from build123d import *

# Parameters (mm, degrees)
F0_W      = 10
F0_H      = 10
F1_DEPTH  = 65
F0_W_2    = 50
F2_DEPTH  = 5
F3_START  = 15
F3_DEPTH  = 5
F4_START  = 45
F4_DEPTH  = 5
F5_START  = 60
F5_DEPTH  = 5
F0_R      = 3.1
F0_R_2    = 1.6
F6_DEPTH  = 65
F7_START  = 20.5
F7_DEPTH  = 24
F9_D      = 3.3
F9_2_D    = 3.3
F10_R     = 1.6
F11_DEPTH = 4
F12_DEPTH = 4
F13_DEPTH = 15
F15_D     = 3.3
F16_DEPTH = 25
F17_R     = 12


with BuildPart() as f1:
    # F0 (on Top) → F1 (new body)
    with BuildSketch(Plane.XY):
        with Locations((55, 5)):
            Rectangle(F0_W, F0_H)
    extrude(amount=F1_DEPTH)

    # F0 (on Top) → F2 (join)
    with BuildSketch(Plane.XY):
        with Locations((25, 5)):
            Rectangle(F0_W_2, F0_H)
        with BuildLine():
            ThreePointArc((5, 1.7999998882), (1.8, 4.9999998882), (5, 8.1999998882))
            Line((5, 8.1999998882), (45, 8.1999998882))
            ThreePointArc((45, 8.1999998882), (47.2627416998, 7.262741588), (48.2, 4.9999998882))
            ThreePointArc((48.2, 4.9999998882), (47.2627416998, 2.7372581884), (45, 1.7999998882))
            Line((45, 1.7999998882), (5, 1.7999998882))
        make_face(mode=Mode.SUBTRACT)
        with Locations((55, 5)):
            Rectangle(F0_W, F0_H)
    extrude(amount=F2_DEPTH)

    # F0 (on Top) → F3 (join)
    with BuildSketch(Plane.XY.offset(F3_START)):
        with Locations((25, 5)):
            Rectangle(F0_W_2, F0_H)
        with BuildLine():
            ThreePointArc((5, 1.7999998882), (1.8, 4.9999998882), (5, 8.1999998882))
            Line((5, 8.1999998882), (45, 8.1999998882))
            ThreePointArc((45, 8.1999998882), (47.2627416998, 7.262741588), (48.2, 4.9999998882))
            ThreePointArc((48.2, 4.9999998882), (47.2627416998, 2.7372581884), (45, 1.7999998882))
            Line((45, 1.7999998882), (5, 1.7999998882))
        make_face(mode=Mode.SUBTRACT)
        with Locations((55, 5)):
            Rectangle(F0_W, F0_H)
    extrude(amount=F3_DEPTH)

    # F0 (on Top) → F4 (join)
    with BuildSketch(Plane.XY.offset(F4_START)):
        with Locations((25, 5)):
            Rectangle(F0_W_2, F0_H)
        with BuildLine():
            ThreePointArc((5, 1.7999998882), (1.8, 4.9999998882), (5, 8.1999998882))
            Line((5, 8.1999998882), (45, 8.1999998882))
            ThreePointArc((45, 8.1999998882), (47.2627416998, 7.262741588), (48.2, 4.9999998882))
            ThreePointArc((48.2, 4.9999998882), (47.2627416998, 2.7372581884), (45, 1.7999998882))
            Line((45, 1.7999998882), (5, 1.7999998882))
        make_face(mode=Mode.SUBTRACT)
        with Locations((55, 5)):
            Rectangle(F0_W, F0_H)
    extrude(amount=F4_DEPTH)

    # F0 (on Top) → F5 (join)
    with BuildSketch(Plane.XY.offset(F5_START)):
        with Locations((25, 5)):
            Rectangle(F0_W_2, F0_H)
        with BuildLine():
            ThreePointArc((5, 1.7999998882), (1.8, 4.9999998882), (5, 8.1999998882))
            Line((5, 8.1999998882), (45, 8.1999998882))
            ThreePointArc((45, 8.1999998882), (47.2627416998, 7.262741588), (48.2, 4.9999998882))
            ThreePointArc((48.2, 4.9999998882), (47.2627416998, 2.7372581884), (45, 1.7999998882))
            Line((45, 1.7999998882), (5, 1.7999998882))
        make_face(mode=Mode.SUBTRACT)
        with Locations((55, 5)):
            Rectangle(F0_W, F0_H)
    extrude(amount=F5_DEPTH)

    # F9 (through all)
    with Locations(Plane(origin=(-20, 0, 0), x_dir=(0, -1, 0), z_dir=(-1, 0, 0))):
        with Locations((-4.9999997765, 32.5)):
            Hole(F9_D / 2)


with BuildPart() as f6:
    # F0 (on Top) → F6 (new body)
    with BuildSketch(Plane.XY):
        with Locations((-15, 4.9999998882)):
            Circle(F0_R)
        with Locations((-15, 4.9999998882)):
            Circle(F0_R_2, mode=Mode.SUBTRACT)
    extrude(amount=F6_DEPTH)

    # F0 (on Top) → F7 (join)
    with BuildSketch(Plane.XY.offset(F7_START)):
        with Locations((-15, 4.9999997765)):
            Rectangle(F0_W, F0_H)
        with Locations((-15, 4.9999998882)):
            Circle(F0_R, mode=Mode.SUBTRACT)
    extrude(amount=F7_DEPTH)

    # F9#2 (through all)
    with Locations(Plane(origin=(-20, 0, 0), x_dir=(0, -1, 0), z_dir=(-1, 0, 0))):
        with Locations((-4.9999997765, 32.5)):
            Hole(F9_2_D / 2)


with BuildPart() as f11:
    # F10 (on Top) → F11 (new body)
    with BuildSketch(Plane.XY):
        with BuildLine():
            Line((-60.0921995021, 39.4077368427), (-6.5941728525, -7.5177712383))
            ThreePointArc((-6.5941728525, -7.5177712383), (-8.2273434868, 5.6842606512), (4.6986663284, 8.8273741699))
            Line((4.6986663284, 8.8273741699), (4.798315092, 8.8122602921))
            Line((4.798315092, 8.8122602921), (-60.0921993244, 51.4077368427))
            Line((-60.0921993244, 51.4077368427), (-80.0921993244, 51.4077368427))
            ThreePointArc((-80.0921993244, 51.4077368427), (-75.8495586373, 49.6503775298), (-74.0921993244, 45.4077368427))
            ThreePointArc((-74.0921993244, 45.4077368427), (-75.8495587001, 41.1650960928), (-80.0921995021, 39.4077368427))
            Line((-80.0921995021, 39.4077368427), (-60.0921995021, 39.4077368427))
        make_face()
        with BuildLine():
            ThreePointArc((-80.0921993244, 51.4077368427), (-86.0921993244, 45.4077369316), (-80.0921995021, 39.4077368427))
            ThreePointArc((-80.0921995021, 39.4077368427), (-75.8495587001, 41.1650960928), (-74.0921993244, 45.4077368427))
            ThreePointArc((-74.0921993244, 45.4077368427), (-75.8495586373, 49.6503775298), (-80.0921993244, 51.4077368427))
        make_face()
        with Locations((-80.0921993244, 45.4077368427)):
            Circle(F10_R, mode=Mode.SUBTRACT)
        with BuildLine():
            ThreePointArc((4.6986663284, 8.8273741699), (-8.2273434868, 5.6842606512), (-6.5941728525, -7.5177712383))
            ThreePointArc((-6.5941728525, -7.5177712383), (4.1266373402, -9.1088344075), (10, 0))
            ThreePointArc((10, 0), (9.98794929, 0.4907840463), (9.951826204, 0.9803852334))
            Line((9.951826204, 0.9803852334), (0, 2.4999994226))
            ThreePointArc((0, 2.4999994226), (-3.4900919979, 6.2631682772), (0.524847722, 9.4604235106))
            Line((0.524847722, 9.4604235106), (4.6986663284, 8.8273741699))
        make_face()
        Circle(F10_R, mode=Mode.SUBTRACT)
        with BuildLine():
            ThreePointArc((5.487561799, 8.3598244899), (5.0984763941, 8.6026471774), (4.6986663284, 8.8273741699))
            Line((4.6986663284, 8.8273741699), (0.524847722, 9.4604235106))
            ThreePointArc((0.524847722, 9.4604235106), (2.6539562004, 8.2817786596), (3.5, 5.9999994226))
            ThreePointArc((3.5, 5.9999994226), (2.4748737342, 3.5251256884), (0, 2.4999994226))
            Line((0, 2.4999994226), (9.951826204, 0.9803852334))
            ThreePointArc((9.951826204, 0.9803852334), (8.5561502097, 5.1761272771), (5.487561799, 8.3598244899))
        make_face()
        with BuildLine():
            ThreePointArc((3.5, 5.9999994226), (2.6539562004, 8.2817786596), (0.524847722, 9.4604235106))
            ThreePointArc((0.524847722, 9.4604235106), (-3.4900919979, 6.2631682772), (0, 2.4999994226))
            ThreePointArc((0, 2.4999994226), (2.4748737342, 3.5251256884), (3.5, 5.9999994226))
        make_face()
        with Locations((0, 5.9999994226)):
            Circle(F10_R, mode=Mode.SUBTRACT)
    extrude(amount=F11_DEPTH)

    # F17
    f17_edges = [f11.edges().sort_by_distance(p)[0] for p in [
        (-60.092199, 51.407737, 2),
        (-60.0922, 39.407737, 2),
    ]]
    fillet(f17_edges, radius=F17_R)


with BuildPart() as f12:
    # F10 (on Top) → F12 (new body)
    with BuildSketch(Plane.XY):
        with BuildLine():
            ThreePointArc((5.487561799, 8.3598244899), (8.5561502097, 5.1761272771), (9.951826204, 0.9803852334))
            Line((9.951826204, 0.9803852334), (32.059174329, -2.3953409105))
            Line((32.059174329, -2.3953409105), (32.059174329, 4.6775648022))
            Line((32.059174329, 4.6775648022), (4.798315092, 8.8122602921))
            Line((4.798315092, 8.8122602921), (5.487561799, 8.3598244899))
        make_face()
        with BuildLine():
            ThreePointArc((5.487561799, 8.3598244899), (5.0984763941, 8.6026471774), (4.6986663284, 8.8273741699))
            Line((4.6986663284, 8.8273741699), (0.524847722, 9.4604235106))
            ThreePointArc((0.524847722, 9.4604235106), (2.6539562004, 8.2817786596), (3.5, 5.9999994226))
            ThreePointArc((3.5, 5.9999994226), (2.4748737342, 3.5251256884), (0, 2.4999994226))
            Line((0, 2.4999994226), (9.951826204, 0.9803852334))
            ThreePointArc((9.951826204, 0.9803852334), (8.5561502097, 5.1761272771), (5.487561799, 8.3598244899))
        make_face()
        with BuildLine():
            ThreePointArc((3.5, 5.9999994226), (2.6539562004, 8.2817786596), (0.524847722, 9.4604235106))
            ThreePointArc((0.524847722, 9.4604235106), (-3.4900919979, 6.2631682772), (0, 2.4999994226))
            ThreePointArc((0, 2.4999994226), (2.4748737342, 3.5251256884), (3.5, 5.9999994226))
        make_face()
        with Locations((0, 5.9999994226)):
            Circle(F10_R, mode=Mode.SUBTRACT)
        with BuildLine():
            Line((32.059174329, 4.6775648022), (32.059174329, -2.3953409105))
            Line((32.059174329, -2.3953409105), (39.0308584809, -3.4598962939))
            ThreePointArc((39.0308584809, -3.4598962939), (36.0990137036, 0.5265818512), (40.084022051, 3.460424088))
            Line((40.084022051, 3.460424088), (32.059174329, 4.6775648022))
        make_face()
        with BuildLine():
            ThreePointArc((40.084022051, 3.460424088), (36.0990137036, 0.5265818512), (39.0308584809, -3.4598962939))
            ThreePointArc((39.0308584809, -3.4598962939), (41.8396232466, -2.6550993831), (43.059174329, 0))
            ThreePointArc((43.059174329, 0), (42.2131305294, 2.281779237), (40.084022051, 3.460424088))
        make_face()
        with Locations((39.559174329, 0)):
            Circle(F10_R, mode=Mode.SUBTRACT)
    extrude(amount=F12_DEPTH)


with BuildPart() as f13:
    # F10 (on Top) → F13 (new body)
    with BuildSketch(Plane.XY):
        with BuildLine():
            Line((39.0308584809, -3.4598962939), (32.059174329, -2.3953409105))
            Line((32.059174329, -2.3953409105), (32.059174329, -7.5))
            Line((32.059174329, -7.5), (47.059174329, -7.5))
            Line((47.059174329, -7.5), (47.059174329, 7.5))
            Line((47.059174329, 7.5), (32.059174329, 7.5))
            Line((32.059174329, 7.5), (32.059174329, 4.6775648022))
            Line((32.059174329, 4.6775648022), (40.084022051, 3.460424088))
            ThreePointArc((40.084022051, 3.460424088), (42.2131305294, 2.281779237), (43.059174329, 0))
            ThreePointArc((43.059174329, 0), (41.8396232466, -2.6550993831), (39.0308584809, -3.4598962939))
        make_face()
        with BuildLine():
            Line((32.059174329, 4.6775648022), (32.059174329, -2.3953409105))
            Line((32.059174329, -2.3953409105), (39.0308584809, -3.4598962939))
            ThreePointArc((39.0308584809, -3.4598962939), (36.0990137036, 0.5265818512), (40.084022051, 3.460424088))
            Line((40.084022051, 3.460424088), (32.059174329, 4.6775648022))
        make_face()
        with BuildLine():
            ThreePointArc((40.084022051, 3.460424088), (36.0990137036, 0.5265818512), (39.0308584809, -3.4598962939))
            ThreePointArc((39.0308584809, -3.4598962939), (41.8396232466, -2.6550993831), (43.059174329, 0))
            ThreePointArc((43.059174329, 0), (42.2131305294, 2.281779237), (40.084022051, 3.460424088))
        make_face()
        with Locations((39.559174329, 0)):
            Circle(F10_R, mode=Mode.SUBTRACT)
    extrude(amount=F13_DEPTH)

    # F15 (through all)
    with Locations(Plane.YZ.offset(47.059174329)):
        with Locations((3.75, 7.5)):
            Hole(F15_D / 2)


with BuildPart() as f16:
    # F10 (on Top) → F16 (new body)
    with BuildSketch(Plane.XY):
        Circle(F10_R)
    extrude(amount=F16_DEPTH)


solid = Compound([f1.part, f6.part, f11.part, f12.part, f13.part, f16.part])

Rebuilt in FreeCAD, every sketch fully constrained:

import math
import FreeCAD as App
import Part
import Sketcher

V = App.Vector


def edges_at(feature, points):
    """Names of the edges that pass closest to the given points."""
    edges = feature.Shape.Edges
    near = lambda p: min(range(len(edges)), key=lambda i: edges[i].distToShape(Part.Vertex(*p))[0])
    return sorted({f"Edge{near(p) + 1}" for p in points})


def add_polygon(sketch, points):
    """Adds a closed chain of lines whose ends are joined by coincident constraints."""
    first, n = sketch.GeometryCount, len(points)
    for a, b in zip(points, points[1:] + points[:1]):
        sketch.addGeometry(Part.LineSegment(App.Vector(*a, 0), App.Vector(*b, 0)), False)
    for i in range(n):
        sketch.addConstraint(Sketcher.Constraint("Coincident", first + i, 2, first + (i + 1) % n, 1))

doc = App.newDocument("Part")
body = doc.addObject("PartDesign::Body", "Body")

sketch1 = body.newObject("Sketcher::SketchObject", "Sketch")
sketch1.AttachmentSupport = (doc.getObject("XY_Plane"), [""])
sketch1.MapMode = "FlatFace"
add_polygon(sketch1, [(50, 10), (50, 0), (60, 0), (60, 10)])
sketch1.addConstraint([
    Sketcher.Constraint("Vertical", 0),
    Sketcher.Constraint("Horizontal", 1),
    Sketcher.Constraint("Vertical", 2),
    Sketcher.Constraint("Horizontal", 3),
    Sketcher.Constraint("PointOnObject", 0, 2, -1),
    Sketcher.Constraint("Equal", 3, 0),
    Sketcher.Constraint("DistanceX", 1, 1, 1, 2, 10.0),
    Sketcher.Constraint("DistanceX", -1, 1, 0, 2, 50.0),
])
pad1 = body.newObject("PartDesign::Pad", "Pad")
pad1.Profile = sketch1
pad1.Length = 65

sketch2 = body.newObject("Sketcher::SketchObject", "Sketch001")
sketch2.AttachmentSupport = (doc.getObject("XY_Plane"), [""])
sketch2.MapMode = "FlatFace"
add_polygon(sketch2, [(0, 10), (0, 0), (60, 0), (60, 10)])
sketch2.addGeometry(Part.LineSegment(V(45, 1.8, 0), V(5, 1.8, 0)), False)
sketch2.addGeometry(Part.ArcOfCircle(Part.Circle(V(5, 5, 0), V(0, 0, 1), 3.2), math.radians(90), math.radians(270)), False)
sketch2.addGeometry(Part.LineSegment(V(5, 8.2, 0), V(45, 8.2, 0)), False)
sketch2.addGeometry(Part.ArcOfCircle(Part.Circle(V(45, 5, 0), V(0, 0, 1), 3.2), math.radians(0), math.radians(90)), False)
sketch2.addGeometry(Part.ArcOfCircle(Part.Circle(V(45, 5, 0), V(0, 0, 1), 3.2), math.radians(-90), math.radians(0)), False)
sketch2.addConstraint([
    Sketcher.Constraint("Tangent", 4, 2, 5, 2),
    Sketcher.Constraint("Tangent", 5, 1, 6, 1),
    Sketcher.Constraint("Tangent", 6, 2, 7, 2),
    Sketcher.Constraint("Tangent", 7, 1, 8, 2),
    Sketcher.Constraint("Tangent", 8, 1, 4, 1),
    Sketcher.Constraint("Vertical", 0),
    Sketcher.Constraint("Horizontal", 1),
    Sketcher.Constraint("Vertical", 2),
    Sketcher.Constraint("Horizontal", 3),
    Sketcher.Constraint("Horizontal", 4),
    Sketcher.Constraint("Horizontal", 6),
    Sketcher.Constraint("Coincident", 0, 2, -1, 1),
    Sketcher.Constraint("Equal", 5, 7),
    Sketcher.Constraint("Horizontal", 8, 3, 7, 1),
    Sketcher.Constraint("Radius", 5, 3.2),
    Sketcher.Constraint("DistanceX", 1, 1, 1, 2, 60.0),
    Sketcher.Constraint("DistanceX", 4, 2, 4, 1, 40.0),
    Sketcher.Constraint("DistanceY", 0, 2, 0, 1, 10.0),
    Sketcher.Constraint("DistanceX", -1, 1, 5, 3, 5.0),
    Sketcher.Constraint("DistanceY", -1, 1, 5, 3, 5.0),
])
pad2 = body.newObject("PartDesign::Pad", "Pad001")
pad2.Profile = sketch2
pad2.Length = 5

sketch3 = body.newObject("Sketcher::SketchObject", "Sketch002")
sketch3.AttachmentSupport = (doc.getObject("XY_Plane"), [""])
sketch3.MapMode = "FlatFace"
sketch3.AttachmentOffset = App.Placement(V(0, 0, 15), App.Rotation())
add_polygon(sketch3, [(0, 10), (0, 0), (60, 0), (60, 10)])
sketch3.addGeometry(Part.LineSegment(V(45, 1.8, 0), V(5, 1.8, 0)), False)
sketch3.addGeometry(Part.ArcOfCircle(Part.Circle(V(5, 5, 0), V(0, 0, 1), 3.2), math.radians(90), math.radians(270)), False)
sketch3.addGeometry(Part.LineSegment(V(5, 8.2, 0), V(45, 8.2, 0)), False)
sketch3.addGeometry(Part.ArcOfCircle(Part.Circle(V(45, 5, 0), V(0, 0, 1), 3.2), math.radians(0), math.radians(90)), False)
sketch3.addGeometry(Part.ArcOfCircle(Part.Circle(V(45, 5, 0), V(0, 0, 1), 3.2), math.radians(-90), math.radians(0)), False)
sketch3.addConstraint([
    Sketcher.Constraint("Tangent", 4, 2, 5, 2),
    Sketcher.Constraint("Tangent", 5, 1, 6, 1),
    Sketcher.Constraint("Tangent", 6, 2, 7, 2),
    Sketcher.Constraint("Tangent", 7, 1, 8, 2),
    Sketcher.Constraint("Tangent", 8, 1, 4, 1),
    Sketcher.Constraint("Vertical", 0),
    Sketcher.Constraint("Horizontal", 1),
    Sketcher.Constraint("Vertical", 2),
    Sketcher.Constraint("Horizontal", 3),
    Sketcher.Constraint("Horizontal", 4),
    Sketcher.Constraint("Horizontal", 6),
    Sketcher.Constraint("Coincident", 0, 2, -1, 1),
    Sketcher.Constraint("Equal", 5, 7),
    Sketcher.Constraint("Horizontal", 8, 3, 7, 1),
    Sketcher.Constraint("Radius", 5, 3.2),
    Sketcher.Constraint("DistanceX", 1, 1, 1, 2, 60.0),
    Sketcher.Constraint("DistanceX", 4, 2, 4, 1, 40.0),
    Sketcher.Constraint("DistanceY", 0, 2, 0, 1, 10.0),
    Sketcher.Constraint("DistanceX", -1, 1, 5, 3, 5.0),
    Sketcher.Constraint("DistanceY", -1, 1, 5, 3, 5.0),
])
pad3 = body.newObject("PartDesign::Pad", "Pad002")
pad3.Profile = sketch3
pad3.Length = 5

sketch4 = body.newObject("Sketcher::SketchObject", "Sketch003")
sketch4.AttachmentSupport = (doc.getObject("XY_Plane"), [""])
sketch4.MapMode = "FlatFace"
sketch4.AttachmentOffset = App.Placement(V(0, 0, 45), App.Rotation())
add_polygon(sketch4, [(0, 10), (0, 0), (60, 0), (60, 10)])
sketch4.addGeometry(Part.LineSegment(V(45, 1.8, 0), V(5, 1.8, 0)), False)
sketch4.addGeometry(Part.ArcOfCircle(Part.Circle(V(5, 5, 0), V(0, 0, 1), 3.2), math.radians(90), math.radians(270)), False)
sketch4.addGeometry(Part.LineSegment(V(5, 8.2, 0), V(45, 8.2, 0)), False)
sketch4.addGeometry(Part.ArcOfCircle(Part.Circle(V(45, 5, 0), V(0, 0, 1), 3.2), math.radians(0), math.radians(90)), False)
sketch4.addGeometry(Part.ArcOfCircle(Part.Circle(V(45, 5, 0), V(0, 0, 1), 3.2), math.radians(-90), math.radians(0)), False)
sketch4.addConstraint([
    Sketcher.Constraint("Tangent", 4, 2, 5, 2),
    Sketcher.Constraint("Tangent", 5, 1, 6, 1),
    Sketcher.Constraint("Tangent", 6, 2, 7, 2),
    Sketcher.Constraint("Tangent", 7, 1, 8, 2),
    Sketcher.Constraint("Tangent", 8, 1, 4, 1),
    Sketcher.Constraint("Vertical", 0),
    Sketcher.Constraint("Horizontal", 1),
    Sketcher.Constraint("Vertical", 2),
    Sketcher.Constraint("Horizontal", 3),
    Sketcher.Constraint("Horizontal", 4),
    Sketcher.Constraint("Horizontal", 6),
    Sketcher.Constraint("Coincident", 0, 2, -1, 1),
    Sketcher.Constraint("Equal", 5, 7),
    Sketcher.Constraint("Horizontal", 8, 3, 7, 1),
    Sketcher.Constraint("Radius", 5, 3.2),
    Sketcher.Constraint("DistanceX", 1, 1, 1, 2, 60.0),
    Sketcher.Constraint("DistanceX", 4, 2, 4, 1, 40.0),
    Sketcher.Constraint("DistanceY", 0, 2, 0, 1, 10.0),
    Sketcher.Constraint("DistanceX", -1, 1, 5, 3, 5.0),
    Sketcher.Constraint("DistanceY", -1, 1, 5, 3, 5.0),
])
pad4 = body.newObject("PartDesign::Pad", "Pad003")
pad4.Profile = sketch4
pad4.Length = 5

sketch5 = body.newObject("Sketcher::SketchObject", "Sketch004")
sketch5.AttachmentSupport = (doc.getObject("XY_Plane"), [""])
sketch5.MapMode = "FlatFace"
sketch5.AttachmentOffset = App.Placement(V(0, 0, 60), App.Rotation())
add_polygon(sketch5, [(0, 10), (0, 0), (60, 0), (60, 10)])
sketch5.addGeometry(Part.LineSegment(V(45, 1.8, 0), V(5, 1.8, 0)), False)
sketch5.addGeometry(Part.ArcOfCircle(Part.Circle(V(5, 5, 0), V(0, 0, 1), 3.2), math.radians(90), math.radians(270)), False)
sketch5.addGeometry(Part.LineSegment(V(5, 8.2, 0), V(45, 8.2, 0)), False)
sketch5.addGeometry(Part.ArcOfCircle(Part.Circle(V(45, 5, 0), V(0, 0, 1), 3.2), math.radians(0), math.radians(90)), False)
sketch5.addGeometry(Part.ArcOfCircle(Part.Circle(V(45, 5, 0), V(0, 0, 1), 3.2), math.radians(-90), math.radians(0)), False)
sketch5.addConstraint([
    Sketcher.Constraint("Tangent", 4, 2, 5, 2),
    Sketcher.Constraint("Tangent", 5, 1, 6, 1),
    Sketcher.Constraint("Tangent", 6, 2, 7, 2),
    Sketcher.Constraint("Tangent", 7, 1, 8, 2),
    Sketcher.Constraint("Tangent", 8, 1, 4, 1),
    Sketcher.Constraint("Vertical", 0),
    Sketcher.Constraint("Horizontal", 1),
    Sketcher.Constraint("Vertical", 2),
    Sketcher.Constraint("Horizontal", 3),
    Sketcher.Constraint("Horizontal", 4),
    Sketcher.Constraint("Horizontal", 6),
    Sketcher.Constraint("Coincident", 0, 2, -1, 1),
    Sketcher.Constraint("Equal", 5, 7),
    Sketcher.Constraint("Horizontal", 8, 3, 7, 1),
    Sketcher.Constraint("Radius", 5, 3.2),
    Sketcher.Constraint("DistanceX", 1, 1, 1, 2, 60.0),
    Sketcher.Constraint("DistanceX", 4, 2, 4, 1, 40.0),
    Sketcher.Constraint("DistanceY", 0, 2, 0, 1, 10.0),
    Sketcher.Constraint("DistanceX", -1, 1, 5, 3, 5.0),
    Sketcher.Constraint("DistanceY", -1, 1, 5, 3, 5.0),
])
pad5 = body.newObject("PartDesign::Pad", "Pad004")
pad5.Profile = sketch5
pad5.Length = 5

sketch6 = body.newObject("Sketcher::SketchObject", "Sketch005")
sketch6.AttachmentSupport = (doc.getObject("YZ_Plane"), [""])
sketch6.MapMode = "FlatFace"
sketch6.AttachmentOffset = App.Placement(V(0, 0, -20), App.Rotation())
sketch6.addGeometry(Part.Circle(V(5, 32.5, 0), V(0, 0, 1), 1.6), False)
sketch6.addConstraint([
    Sketcher.Constraint("Diameter", 0, 3.3),
    Sketcher.Constraint("DistanceX", -1, 1, 0, 3, 5.0),
    Sketcher.Constraint("DistanceY", -1, 1, 0, 3, 32.5),
])
doc.recompute()
hole = body.newObject("PartDesign::Hole", "Hole")
hole.Profile = sketch6
hole.ThreadType = "None"
hole.Diameter = 3.3
hole.DepthType = "ThroughAll"
hole.Reversed = True
body2 = doc.addObject("PartDesign::Body", "Body001")

sketch7 = body2.newObject("Sketcher::SketchObject", "Sketch006")
sketch7.AttachmentSupport = (doc.getObject("XY_Plane001"), [""])
sketch7.MapMode = "FlatFace"
sketch7.addGeometry([
    Part.Circle(V(-15, 5, 0), V(0, 0, 1), 3.1),
    Part.Circle(V(-15, 5, 0), V(0, 0, 1), 1.6),
], False)
sketch7.addConstraint([
    Sketcher.Constraint("Coincident", 1, 3, 0, 3),
    Sketcher.Constraint("Diameter", 0, 6.2),
    Sketcher.Constraint("Diameter", 1, 3.2),
    Sketcher.Constraint("DistanceX", 0, 3, -1, 1, 15.0),
    Sketcher.Constraint("DistanceY", -1, 1, 0, 3, 5.0),
])
pad6 = body2.newObject("PartDesign::Pad", "Pad005")
pad6.Profile = sketch7
pad6.Length = 65

sketch8 = body2.newObject("Sketcher::SketchObject", "Sketch007")
sketch8.AttachmentSupport = (doc.getObject("XY_Plane001"), [""])
sketch8.MapMode = "FlatFace"
sketch8.AttachmentOffset = App.Placement(V(0, 0, 20.5), App.Rotation())
add_polygon(sketch8, [(-20, 10), (-20, 0), (-10, 0), (-10, 10)])
sketch8.addGeometry(Part.Circle(V(-15, 5, 0), V(0, 0, 1), 3.1), False)
sketch8.addConstraint([
    Sketcher.Constraint("Vertical", 0),
    Sketcher.Constraint("Horizontal", 1),
    Sketcher.Constraint("Vertical", 2),
    Sketcher.Constraint("Horizontal", 3),
    Sketcher.Constraint("PointOnObject", 0, 2, -1),
    Sketcher.Constraint("Equal", 3, 0),
    Sketcher.Constraint("Diameter", 4, 6.2),
    Sketcher.Constraint("DistanceX", 1, 1, 1, 2, 10.0),
    Sketcher.Constraint("DistanceX", 4, 3, -1, 1, 15.0),
    Sketcher.Constraint("DistanceY", -1, 1, 4, 3, 5.0),
    Sketcher.Constraint("DistanceX", 0, 2, -1, 1, 20.0),
])
pad7 = body2.newObject("PartDesign::Pad", "Pad006")
pad7.Profile = sketch8
pad7.Length = 24

sketch9 = body2.newObject("Sketcher::SketchObject", "Sketch008")
sketch9.AttachmentSupport = (doc.getObject("YZ_Plane001"), [""])
sketch9.MapMode = "FlatFace"
sketch9.AttachmentOffset = App.Placement(V(0, 0, -20), App.Rotation())
sketch9.addGeometry(Part.Circle(V(5, 32.5, 0), V(0, 0, 1), 1.6), False)
sketch9.addConstraint([
    Sketcher.Constraint("Diameter", 0, 3.3),
    Sketcher.Constraint("DistanceX", -1, 1, 0, 3, 5.0),
    Sketcher.Constraint("DistanceY", -1, 1, 0, 3, 32.5),
])
doc.recompute()
hole2 = body2.newObject("PartDesign::Hole", "Hole001")
hole2.Profile = sketch9
hole2.ThreadType = "None"
hole2.Diameter = 3.3
hole2.DepthType = "ThroughAll"
hole2.Reversed = True
body3 = doc.addObject("PartDesign::Body", "Body002")

sketch10 = body3.newObject("Sketcher::SketchObject", "Sketch009")
sketch10.AttachmentSupport = (doc.getObject("XY_Plane002"), [""])
sketch10.MapMode = "FlatFace"
sketch10.addGeometry([
    Part.LineSegment(V(-60.09, 39.41, 0), V(-6.59, -7.52, 0)),
    Part.ArcOfCircle(Part.Circle(V(0, 0, 0), V(0, 0, 1), 10), math.radians(-131), math.radians(0)),
    Part.ArcOfCircle(Part.Circle(V(0, 0, 0), V(0, 0, 1), 10), math.radians(0), math.radians(5.63)),
    Part.ArcOfCircle(Part.Circle(V(0, 0, 0), V(0, 0, 1), 10), math.radians(6), math.radians(57)),
    Part.ArcOfCircle(Part.Circle(V(0, 0, 0), V(0, 0, 1), 10), math.radians(56.72), math.radians(61.97)),
    Part.LineSegment(V(4.7, 8.83, 0), V(4.8, 8.81, 0)),
    Part.LineSegment(V(4.8, 8.81, 0), V(-60.09, 51.41, 0)),
    Part.LineSegment(V(-60.09, 51.41, 0), V(-80.09, 51.41, 0)),
    Part.ArcOfCircle(Part.Circle(V(-80.09, 45.41, 0), V(0, 0, 1), 6), math.radians(90), math.radians(270)),
    Part.LineSegment(V(-80.09, 39.41, 0), V(-60.09, 39.41, 0)),
    Part.Circle(V(0, 0, 0), V(0, 0, 1), 1.6),
    Part.Circle(V(0, 6, 0), V(0, 0, 1), 1.6),
    Part.Circle(V(-80.09, 45.41, 0), V(0, 0, 1), 1.6),
], False)
sketch10.addConstraint([
    Sketcher.Constraint("Tangent", 0, 2, 1, 1),
    Sketcher.Constraint("Tangent", 1, 2, 2, 1),
    Sketcher.Constraint("Tangent", 2, 2, 3, 1),
    Sketcher.Constraint("Tangent", 3, 2, 4, 1),
    Sketcher.Constraint("Coincident", 4, 2, 5, 1),
    Sketcher.Constraint("Coincident", 5, 2, 6, 1),
    Sketcher.Constraint("Coincident", 6, 2, 7, 1),
    Sketcher.Constraint("Tangent", 7, 2, 8, 1),
    Sketcher.Constraint("Tangent", 8, 2, 9, 1),
    Sketcher.Constraint("Coincident", 9, 2, 0, 1),
    Sketcher.Constraint("Horizontal", 7),
    Sketcher.Constraint("Horizontal", 9),
    Sketcher.Constraint("Coincident", 1, 3, -1, 1),
    Sketcher.Constraint("Coincident", 3, 3, -1, 1),
    Sketcher.Constraint("Coincident", 10, 3, -1, 1),
    Sketcher.Constraint("Coincident", 12, 3, 8, 3),
    Sketcher.Constraint("Equal", 3, 4),
    Sketcher.Constraint("Equal", 10, 11),
    Sketcher.Constraint("Equal", 11, 12),
    Sketcher.Constraint("PointOnObject", 11, 3, -2),
    Sketcher.Constraint("PointOnObject", 1, 2, -1),
    Sketcher.Constraint("Vertical", 6, 2, 9, 2),
    Sketcher.Constraint("Radius", 1, 10.0),
    Sketcher.Constraint("Radius", 8, 6.0),
    Sketcher.Constraint("Diameter", 10, 3.2),
    Sketcher.Constraint("DistanceX", 7, 2, 7, 1, 20.0),
    Sketcher.Constraint("DistanceY", -1, 1, 11, 3, 5.999999),
    Sketcher.Constraint("DistanceX", 8, 3, -1, 1, 80.092199),
    Sketcher.Constraint("Distance", 5, 0.100788),
    Sketcher.Constraint("DistanceY", 0, 2, -1, 1, 7.517771),
    Sketcher.Constraint("DistanceX", -1, 1, 3, 2, 5.487562),
    Sketcher.Constraint("DistanceY", -1, 1, 5, 2, 8.81226),
    Sketcher.Constraint("DistanceY", 2, 2, 3, 2, 7.379439),
    Sketcher.Constraint("DistanceY", 3, 2, 4, 2, 0.46755),
])
pad8 = body3.newObject("PartDesign::Pad", "Pad007")
pad8.Profile = sketch10
pad8.Length = 4
doc.recompute()

fillet = body3.newObject("PartDesign::Fillet", "Fillet")
fillet.Base = (pad8, edges_at(pad8, [(-60.092, 51.408, 2), (-60.092, 39.408, 2)]))
fillet.Radius = 12
body4 = doc.addObject("PartDesign::Body", "Body003")

sketch11 = body4.newObject("Sketcher::SketchObject", "Sketch010")
sketch11.AttachmentSupport = (doc.getObject("XY_Plane003"), [""])
sketch11.MapMode = "FlatFace"
sketch11.addGeometry([
    Part.LineSegment(V(0, 2.5, 0), V(32.1, -2.4, 0)),
    Part.LineSegment(V(32.1, -2.4, 0), V(39, -3.5, 0)),
    Part.ArcOfCircle(Part.Circle(V(39.6, 0, 0), V(0, 0, 1), 3.5), math.radians(-99), math.radians(0)),
    Part.ArcOfCircle(Part.Circle(V(39.6, 0, 0), V(0, 0, 1), 3.5), math.radians(0), math.radians(81)),
    Part.LineSegment(V(40.1, 3.5, 0), V(32.1, 4.7, 0)),
    Part.LineSegment(V(32.1, 4.7, 0), V(4.8, 8.8, 0)),
    Part.LineSegment(V(4.8, 8.8, 0), V(5.5, 8.4, 0)),
    Part.ArcOfCircle(Part.Circle(V(0, 0, 0), V(0, 0, 1), 10), math.radians(56.72), math.radians(61.97)),
    Part.LineSegment(V(4.7, 8.8, 0), V(0.5, 9.5, 0)),
    Part.ArcOfCircle(Part.Circle(V(0, 6, 0), V(0, 0, 1), 3.5), math.radians(81), math.radians(270)),
    Part.Circle(V(39.6, 0, 0), V(0, 0, 1), 1.6),
    Part.Circle(V(0, 6, 0), V(0, 0, 1), 1.6),
], False)
sketch11.addConstraint([
    Sketcher.Constraint("Coincident", 0, 2, 1, 1),
    Sketcher.Constraint("Tangent", 1, 2, 2, 1),
    Sketcher.Constraint("Tangent", 2, 2, 3, 1),
    Sketcher.Constraint("Tangent", 3, 2, 4, 1),
    Sketcher.Constraint("Coincident", 4, 2, 5, 1),
    Sketcher.Constraint("Coincident", 5, 2, 6, 1),
    Sketcher.Constraint("Tangent", 6, 2, 7, 1),
    Sketcher.Constraint("Coincident", 7, 2, 8, 1),
    Sketcher.Constraint("Tangent", 8, 2, 9, 1),
    Sketcher.Constraint("Coincident", 9, 2, 0, 1),
    Sketcher.Constraint("Coincident", 7, 3, -1, 1),
    Sketcher.Constraint("Coincident", 10, 3, 2, 3),
    Sketcher.Constraint("Coincident", 11, 3, 9, 3),
    Sketcher.Constraint("Equal", 2, 3),
    Sketcher.Constraint("Equal", 3, 9),
    Sketcher.Constraint("Equal", 10, 11),
    Sketcher.Constraint("PointOnObject", 2, 3, -1),
    Sketcher.Constraint("PointOnObject", 9, 3, -2),
    Sketcher.Constraint("PointOnObject", 2, 2, -1),
    Sketcher.Constraint("PointOnObject", 9, 2, -2),
    Sketcher.Constraint("Parallel", 0, 1),
    Sketcher.Constraint("Parallel", 4, 5),
    Sketcher.Constraint("Parallel", 5, 8),
    Sketcher.Constraint("Vertical", 0, 2, 4, 2),
    Sketcher.Constraint("Radius", 7, 10.0),
    Sketcher.Constraint("Diameter", 10, 3.2),
    Sketcher.Constraint("Radius", 2, 3.5),
    Sketcher.Constraint("DistanceY", -1, 1, 9, 3, 5.999999),
    Sketcher.Constraint("DistanceX", 0, 2, 2, 2, 11.0),
    Sketcher.Constraint("DistanceY", 0, 2, 5, 2, 11.207601),
    Sketcher.Constraint("DistanceY", 6, 2, 8, 2, 1.100599),
    Sketcher.Constraint("DistanceY", 0, 2, -1, 1, 2.395341),
])
pad9 = body4.newObject("PartDesign::Pad", "Pad008")
pad9.Profile = sketch11
pad9.Length = 4
body5 = doc.addObject("PartDesign::Body", "Body004")

sketch12 = body5.newObject("Sketcher::SketchObject", "Sketch011")
sketch12.AttachmentSupport = (doc.getObject("XY_Plane004"), [""])
sketch12.MapMode = "FlatFace"
add_polygon(sketch12, [(32.1, -7.5), (47.1, -7.5), (47.1, 7.5), (32.1, 7.5)])
sketch12.addGeometry(Part.Circle(V(39.6, 0, 0), V(0, 0, 1), 1.6), False)
sketch12.addConstraint([
    Sketcher.Constraint("Horizontal", 0),
    Sketcher.Constraint("Vertical", 1),
    Sketcher.Constraint("Horizontal", 2),
    Sketcher.Constraint("Vertical", 3),
    Sketcher.Constraint("PointOnObject", 4, 3, -1),
    Sketcher.Constraint("Equal", 2, 1),
    Sketcher.Constraint("Diameter", 4, 3.2),
    Sketcher.Constraint("DistanceX", 0, 1, 0, 2, 15.0),
    Sketcher.Constraint("DistanceY", 0, 2, -1, 1, 7.5),
    Sketcher.Constraint("DistanceX", 4, 3, 0, 2, 7.5),
    Sketcher.Constraint("DistanceX", -1, 1, 4, 3, 39.559174),
])
pad10 = body5.newObject("PartDesign::Pad", "Pad009")
pad10.Profile = sketch12
pad10.Length = 15

sketch13 = body5.newObject("Sketcher::SketchObject", "Sketch012")
sketch13.AttachmentSupport = (doc.getObject("YZ_Plane004"), [""])
sketch13.MapMode = "FlatFace"
sketch13.AttachmentOffset = App.Placement(V(0, 0, 47.059174), App.Rotation())
sketch13.addGeometry(Part.Circle(V(3.8, 7.5, 0), V(0, 0, 1), 1.6), False)
sketch13.addConstraint([
    Sketcher.Constraint("Diameter", 0, 3.3),
    Sketcher.Constraint("DistanceY", -1, 1, 0, 3, 7.5),
    Sketcher.Constraint("DistanceX", -1, 1, 0, 3, 3.75),
])
doc.recompute()
hole3 = body5.newObject("PartDesign::Hole", "Hole002")
hole3.Profile = sketch13
hole3.ThreadType = "None"
hole3.Diameter = 3.3
hole3.DepthType = "ThroughAll"
body6 = doc.addObject("PartDesign::Body", "Body005")

sketch14 = body6.newObject("Sketcher::SketchObject", "Sketch013")
sketch14.AttachmentSupport = (doc.getObject("XY_Plane005"), [""])
sketch14.MapMode = "FlatFace"
sketch14.addGeometry(Part.Circle(V(0, 0, 0), V(0, 0, 1), 1.6), False)
sketch14.addConstraint([
    Sketcher.Constraint("Coincident", 0, 3, -1, 1),
    Sketcher.Constraint("Diameter", 0, 3.2),
])
pad11 = body6.newObject("PartDesign::Pad", "Pad010")
pad11.Profile = sketch14
pad11.Length = 25

doc.recompute()
